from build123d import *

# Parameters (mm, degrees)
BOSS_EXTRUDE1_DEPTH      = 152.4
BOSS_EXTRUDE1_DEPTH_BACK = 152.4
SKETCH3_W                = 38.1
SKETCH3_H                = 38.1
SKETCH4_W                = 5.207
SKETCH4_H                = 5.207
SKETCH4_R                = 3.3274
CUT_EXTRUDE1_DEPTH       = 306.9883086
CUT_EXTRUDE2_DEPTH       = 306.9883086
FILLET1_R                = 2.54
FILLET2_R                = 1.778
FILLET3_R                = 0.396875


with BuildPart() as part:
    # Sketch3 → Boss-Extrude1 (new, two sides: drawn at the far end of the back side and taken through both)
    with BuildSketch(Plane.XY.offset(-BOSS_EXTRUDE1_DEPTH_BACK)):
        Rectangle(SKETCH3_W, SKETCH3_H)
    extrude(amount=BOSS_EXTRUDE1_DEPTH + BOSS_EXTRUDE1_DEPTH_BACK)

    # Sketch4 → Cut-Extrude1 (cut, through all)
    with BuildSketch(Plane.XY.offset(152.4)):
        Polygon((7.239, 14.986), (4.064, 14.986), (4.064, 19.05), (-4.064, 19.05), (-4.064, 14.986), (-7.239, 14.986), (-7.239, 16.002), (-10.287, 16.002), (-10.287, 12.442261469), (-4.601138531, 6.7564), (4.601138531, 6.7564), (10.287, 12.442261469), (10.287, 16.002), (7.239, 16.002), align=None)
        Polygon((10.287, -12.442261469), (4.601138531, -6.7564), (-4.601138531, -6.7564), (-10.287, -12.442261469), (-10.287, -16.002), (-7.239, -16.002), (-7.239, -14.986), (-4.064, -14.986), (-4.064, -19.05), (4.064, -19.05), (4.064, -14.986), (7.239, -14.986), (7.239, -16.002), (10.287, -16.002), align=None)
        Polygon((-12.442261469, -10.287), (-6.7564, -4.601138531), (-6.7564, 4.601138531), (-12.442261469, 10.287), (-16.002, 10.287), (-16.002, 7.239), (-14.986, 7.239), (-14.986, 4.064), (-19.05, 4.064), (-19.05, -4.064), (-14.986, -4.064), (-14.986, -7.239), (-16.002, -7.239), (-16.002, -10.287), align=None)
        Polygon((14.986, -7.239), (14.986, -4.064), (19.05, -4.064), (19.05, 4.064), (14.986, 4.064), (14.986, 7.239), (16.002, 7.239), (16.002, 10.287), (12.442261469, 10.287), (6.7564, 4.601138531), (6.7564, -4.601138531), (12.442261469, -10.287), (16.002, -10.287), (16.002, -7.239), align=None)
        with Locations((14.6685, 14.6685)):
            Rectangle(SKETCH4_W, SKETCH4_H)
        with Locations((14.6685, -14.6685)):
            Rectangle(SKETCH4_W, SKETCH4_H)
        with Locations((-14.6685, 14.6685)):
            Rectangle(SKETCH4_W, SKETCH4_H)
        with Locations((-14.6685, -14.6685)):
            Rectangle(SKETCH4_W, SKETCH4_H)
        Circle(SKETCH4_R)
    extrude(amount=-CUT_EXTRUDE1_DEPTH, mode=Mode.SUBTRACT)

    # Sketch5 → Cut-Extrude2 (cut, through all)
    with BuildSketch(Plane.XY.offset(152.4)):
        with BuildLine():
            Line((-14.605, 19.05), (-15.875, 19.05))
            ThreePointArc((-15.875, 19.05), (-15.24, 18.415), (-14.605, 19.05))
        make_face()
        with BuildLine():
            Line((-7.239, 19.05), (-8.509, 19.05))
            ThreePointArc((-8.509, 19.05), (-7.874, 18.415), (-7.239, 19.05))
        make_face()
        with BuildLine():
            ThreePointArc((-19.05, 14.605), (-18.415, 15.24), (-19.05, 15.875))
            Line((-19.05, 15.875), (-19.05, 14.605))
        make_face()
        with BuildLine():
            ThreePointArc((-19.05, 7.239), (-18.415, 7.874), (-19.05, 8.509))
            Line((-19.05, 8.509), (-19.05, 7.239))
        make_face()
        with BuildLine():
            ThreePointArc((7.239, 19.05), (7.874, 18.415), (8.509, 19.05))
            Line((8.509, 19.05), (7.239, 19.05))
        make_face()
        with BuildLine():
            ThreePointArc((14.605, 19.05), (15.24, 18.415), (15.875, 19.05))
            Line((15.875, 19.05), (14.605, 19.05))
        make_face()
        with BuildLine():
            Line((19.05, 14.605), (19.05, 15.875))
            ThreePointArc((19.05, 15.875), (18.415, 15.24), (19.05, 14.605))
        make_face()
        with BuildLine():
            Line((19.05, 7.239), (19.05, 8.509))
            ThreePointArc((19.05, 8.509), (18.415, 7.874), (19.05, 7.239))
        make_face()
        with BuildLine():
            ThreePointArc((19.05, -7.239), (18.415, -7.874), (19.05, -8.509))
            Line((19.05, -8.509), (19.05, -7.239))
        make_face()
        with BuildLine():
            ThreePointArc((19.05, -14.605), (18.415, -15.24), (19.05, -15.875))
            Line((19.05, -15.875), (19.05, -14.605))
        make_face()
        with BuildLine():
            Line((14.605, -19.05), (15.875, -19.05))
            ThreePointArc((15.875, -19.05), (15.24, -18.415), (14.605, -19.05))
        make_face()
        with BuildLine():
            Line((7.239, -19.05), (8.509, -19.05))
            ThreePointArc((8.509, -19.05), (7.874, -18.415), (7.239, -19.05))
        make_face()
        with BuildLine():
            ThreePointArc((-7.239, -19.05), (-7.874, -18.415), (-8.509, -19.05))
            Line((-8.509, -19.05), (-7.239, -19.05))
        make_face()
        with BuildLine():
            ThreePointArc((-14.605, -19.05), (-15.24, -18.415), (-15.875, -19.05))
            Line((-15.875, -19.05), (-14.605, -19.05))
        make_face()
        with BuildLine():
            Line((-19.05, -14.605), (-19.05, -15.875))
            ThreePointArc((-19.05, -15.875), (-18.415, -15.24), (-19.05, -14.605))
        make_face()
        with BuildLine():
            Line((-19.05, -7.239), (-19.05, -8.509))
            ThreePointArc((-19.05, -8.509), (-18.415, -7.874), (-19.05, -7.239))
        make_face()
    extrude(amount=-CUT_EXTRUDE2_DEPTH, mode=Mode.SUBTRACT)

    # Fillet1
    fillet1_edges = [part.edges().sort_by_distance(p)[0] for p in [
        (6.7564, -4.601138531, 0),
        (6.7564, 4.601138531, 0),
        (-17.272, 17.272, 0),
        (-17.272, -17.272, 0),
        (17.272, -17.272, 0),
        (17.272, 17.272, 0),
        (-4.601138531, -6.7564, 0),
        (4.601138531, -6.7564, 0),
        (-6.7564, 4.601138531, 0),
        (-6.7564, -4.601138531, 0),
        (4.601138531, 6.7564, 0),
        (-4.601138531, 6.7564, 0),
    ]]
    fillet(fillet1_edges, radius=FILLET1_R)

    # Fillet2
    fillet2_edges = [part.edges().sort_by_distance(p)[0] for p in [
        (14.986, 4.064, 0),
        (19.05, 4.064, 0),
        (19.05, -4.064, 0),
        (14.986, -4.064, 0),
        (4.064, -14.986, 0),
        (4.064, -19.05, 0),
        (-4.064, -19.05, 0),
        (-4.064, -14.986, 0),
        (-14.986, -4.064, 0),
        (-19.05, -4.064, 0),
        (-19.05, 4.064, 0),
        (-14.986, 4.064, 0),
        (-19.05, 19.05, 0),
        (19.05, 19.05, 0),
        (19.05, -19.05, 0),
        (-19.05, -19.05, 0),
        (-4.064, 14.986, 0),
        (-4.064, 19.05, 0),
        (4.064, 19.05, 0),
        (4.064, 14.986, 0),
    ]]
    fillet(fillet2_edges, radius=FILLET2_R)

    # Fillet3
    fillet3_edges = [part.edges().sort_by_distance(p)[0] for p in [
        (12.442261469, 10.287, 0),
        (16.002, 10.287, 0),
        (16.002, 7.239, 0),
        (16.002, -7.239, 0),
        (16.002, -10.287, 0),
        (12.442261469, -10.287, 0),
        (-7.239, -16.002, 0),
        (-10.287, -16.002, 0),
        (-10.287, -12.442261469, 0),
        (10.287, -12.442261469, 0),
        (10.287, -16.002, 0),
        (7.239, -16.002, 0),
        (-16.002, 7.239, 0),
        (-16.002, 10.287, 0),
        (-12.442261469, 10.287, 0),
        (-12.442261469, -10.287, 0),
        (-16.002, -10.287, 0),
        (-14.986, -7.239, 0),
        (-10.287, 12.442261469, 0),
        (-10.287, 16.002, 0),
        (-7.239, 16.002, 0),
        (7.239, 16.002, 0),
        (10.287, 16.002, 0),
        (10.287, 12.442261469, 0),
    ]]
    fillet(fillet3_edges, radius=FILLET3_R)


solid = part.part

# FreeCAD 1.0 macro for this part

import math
import FreeCAD as App
import Part
import Sketcher
Q = App.Units.Quantity


def edges_at(feature, points):
    """Names of the edges that pass closest to the given points."""
    edges = feature.Shape.Edges
    near = lambda p: min(range(len(edges)), key=lambda i: edges[i].distToShape(Part.Vertex(*p))[0])
    return sorted({f"Edge{near(p) + 1}" for p in points})

doc = App.newDocument("Part")
params = doc.addObject("Spreadsheet::Sheet", "Params")
for row, (alias, value) in enumerate([
    ("sketch1_width", "1.5 in"),
    ("pad1_length", "6 in"),
    ("pad1_length2", "6 in"),
    ("sketch2_diameter", "0.262 in"),
    ("sketch2_width", "0.32 in"),
    ("sketch2_width2", "0.12 in"),
    ("sketch2_width3", "0.04 in"),
    ("sketch2_width4", "0.16 in"),
    ("sketch3_radius", "0.025 in"),
    ("fillet_radius", "0.1 in"),
    ("fillet2_radius", "0.07 in"),
    ("fillet3_radius", "0.015625 in"),
], start=1):
    params.set(f"A{row}", alias)
    params.set(f"B{row}", "=" + value)
    params.setAlias(f"B{row}", alias)

body = doc.addObject("PartDesign::Body", "Body")

# Sketch on XY plane
sketch1 = body.newObject("Sketcher::SketchObject", "Sketch")
sketch1.AttachmentSupport = (doc.getObject("XY_Plane"), [""])
sketch1.MapMode = "FlatFace"
sketch1.addGeometry([
    Part.LineSegment(App.Vector(-19, 19, 0), App.Vector(-19, -19, 0)),
    Part.LineSegment(App.Vector(-19, -19, 0), App.Vector(19, -19, 0)),
    Part.LineSegment(App.Vector(19, -19, 0), App.Vector(19, 19, 0)),
    Part.LineSegment(App.Vector(19, 19, 0), App.Vector(-19, 19, 0)),
], False)
sketch1.addConstraint([
    Sketcher.Constraint("Coincident", 0, 2, 1, 1),
    Sketcher.Constraint("Coincident", 1, 2, 2, 1),
    Sketcher.Constraint("Coincident", 2, 2, 3, 1),
    Sketcher.Constraint("Coincident", 3, 2, 0, 1),
    Sketcher.Constraint("Vertical", 0),
    Sketcher.Constraint("Horizontal", 1),
    Sketcher.Constraint("Vertical", 2),
    Sketcher.Constraint("Horizontal", 3),
    Sketcher.Constraint("Symmetric", 0, 2, 2, 2, -1, 1),
    Sketcher.Constraint("Equal", 3, 0),
    Sketcher.Constraint("DistanceX", 1, 1, 1, 2, Q("1.5 in")),
])
sketch1.setExpression("Constraints[10]", "Params.sketch1_width")
pad1 = body.newObject("PartDesign::Pad", "Pad")
pad1.Profile = sketch1
pad1.Type = "TwoLengths"
pad1.setExpression("Length", "Params.pad1_length")
pad1.setExpression("Length2", "Params.pad1_length2")

# Sketch on XY plane
sketch2 = body.newObject("Sketcher::SketchObject", "Sketch001")
sketch2.AttachmentSupport = (doc.getObject("XY_Plane"), [""])
sketch2.MapMode = "FlatFace"
sketch2.AttachmentOffset = App.Placement(App.Vector(0, 0, 6 * 25.4), App.Rotation())
sketch2.addGeometry([
    Part.LineSegment(App.Vector(7.2, 15, 0), App.Vector(4.1, 15, 0)),  # 0
    Part.LineSegment(App.Vector(4.1, 15, 0), App.Vector(4.1, 19.1, 0)),  # 1
    Part.LineSegment(App.Vector(4.1, 19.1, 0), App.Vector(-4.1, 19.1, 0)),  # 2
    Part.LineSegment(App.Vector(-4.1, 19.1, 0), App.Vector(-4.1, 15, 0)),  # 3
    Part.LineSegment(App.Vector(-4.1, 15, 0), App.Vector(-7.2, 15, 0)),  # 4
    Part.LineSegment(App.Vector(-7.2, 15, 0), App.Vector(-7.2, 16, 0)),  # 5
    Part.LineSegment(App.Vector(-7.2, 16, 0), App.Vector(-10.3, 16, 0)),  # 6
    Part.LineSegment(App.Vector(-10.3, 16, 0), App.Vector(-10.3, 12.4, 0)),  # 7
    Part.LineSegment(App.Vector(-10.3, 12.4, 0), App.Vector(-4.6, 6.8, 0)),  # 8
    Part.LineSegment(App.Vector(-4.6, 6.8, 0), App.Vector(4.6, 6.8, 0)),  # 9
    Part.LineSegment(App.Vector(4.6, 6.8, 0), App.Vector(10.3, 12.4, 0)),  # 10
    Part.LineSegment(App.Vector(10.3, 12.4, 0), App.Vector(10.3, 16, 0)),  # 11
    Part.LineSegment(App.Vector(10.3, 16, 0), App.Vector(7.2, 16, 0)),  # 12
    Part.LineSegment(App.Vector(7.2, 16, 0), App.Vector(7.2, 15, 0)),  # 13
    Part.LineSegment(App.Vector(10.3, -12.4, 0), App.Vector(4.6, -6.8, 0)),  # 14
    Part.LineSegment(App.Vector(4.6, -6.8, 0), App.Vector(-4.6, -6.8, 0)),  # 15
    Part.LineSegment(App.Vector(-4.6, -6.8, 0), App.Vector(-10.3, -12.4, 0)),  # 16
    Part.LineSegment(App.Vector(-10.3, -12.4, 0), App.Vector(-10.3, -16, 0)),  # 17
    Part.LineSegment(App.Vector(-10.3, -16, 0), App.Vector(-7.2, -16, 0)),  # 18
    Part.LineSegment(App.Vector(-7.2, -16, 0), App.Vector(-7.2, -15, 0)),  # 19
    Part.LineSegment(App.Vector(-7.2, -15, 0), App.Vector(-4.1, -15, 0)),  # 20
    Part.LineSegment(App.Vector(-4.1, -15, 0), App.Vector(-4.1, -19.1, 0)),  # 21
    Part.LineSegment(App.Vector(-4.1, -19.1, 0), App.Vector(4.1, -19.1, 0)),  # 22
    Part.LineSegment(App.Vector(4.1, -19.1, 0), App.Vector(4.1, -15, 0)),  # 23
    Part.LineSegment(App.Vector(4.1, -15, 0), App.Vector(7.2, -15, 0)),  # 24
    Part.LineSegment(App.Vector(7.2, -15, 0), App.Vector(7.2, -16, 0)),  # 25
    Part.LineSegment(App.Vector(7.2, -16, 0), App.Vector(10.3, -16, 0)),  # 26
    Part.LineSegment(App.Vector(10.3, -16, 0), App.Vector(10.3, -12.4, 0)),  # 27
    Part.LineSegment(App.Vector(-12.4, -10.3, 0), App.Vector(-6.8, -4.6, 0)),  # 28
    Part.LineSegment(App.Vector(-6.8, -4.6, 0), App.Vector(-6.8, 4.6, 0)),  # 29
    Part.LineSegment(App.Vector(-6.8, 4.6, 0), App.Vector(-12.4, 10.3, 0)),  # 30
    Part.LineSegment(App.Vector(-12.4, 10.3, 0), App.Vector(-16, 10.3, 0)),  # 31
    Part.LineSegment(App.Vector(-16, 10.3, 0), App.Vector(-16, 7.2, 0)),  # 32
    Part.LineSegment(App.Vector(-16, 7.2, 0), App.Vector(-15, 7.2, 0)),  # 33
    Part.LineSegment(App.Vector(-15, 7.2, 0), App.Vector(-15, 4.1, 0)),  # 34
    Part.LineSegment(App.Vector(-15, 4.1, 0), App.Vector(-19.1, 4.1, 0)),  # 35
    Part.LineSegment(App.Vector(-19.1, 4.1, 0), App.Vector(-19.1, -4.1, 0)),  # 36
    Part.LineSegment(App.Vector(-19.1, -4.1, 0), App.Vector(-15, -4.1, 0)),  # 37
    Part.LineSegment(App.Vector(-15, -4.1, 0), App.Vector(-15, -7.2, 0)),  # 38
    Part.LineSegment(App.Vector(-15, -7.2, 0), App.Vector(-16, -7.2, 0)),  # 39
    Part.LineSegment(App.Vector(-16, -7.2, 0), App.Vector(-16, -10.3, 0)),  # 40
    Part.LineSegment(App.Vector(-16, -10.3, 0), App.Vector(-12.4, -10.3, 0)),  # 41
    Part.LineSegment(App.Vector(15, -7.2, 0), App.Vector(15, -4.1, 0)),  # 42
    Part.LineSegment(App.Vector(15, -4.1, 0), App.Vector(19.1, -4.1, 0)),  # 43
    Part.LineSegment(App.Vector(19.1, -4.1, 0), App.Vector(19.1, 4.1, 0)),  # 44
    Part.LineSegment(App.Vector(19.1, 4.1, 0), App.Vector(15, 4.1, 0)),  # 45
    Part.LineSegment(App.Vector(15, 4.1, 0), App.Vector(15, 7.2, 0)),  # 46
    Part.LineSegment(App.Vector(15, 7.2, 0), App.Vector(16, 7.2, 0)),  # 47
    Part.LineSegment(App.Vector(16, 7.2, 0), App.Vector(16, 10.3, 0)),  # 48
    Part.LineSegment(App.Vector(16, 10.3, 0), App.Vector(12.4, 10.3, 0)),  # 49
    Part.LineSegment(App.Vector(12.4, 10.3, 0), App.Vector(6.8, 4.6, 0)),  # 50
    Part.LineSegment(App.Vector(6.8, 4.6, 0), App.Vector(6.8, -4.6, 0)),  # 51
    Part.LineSegment(App.Vector(6.8, -4.6, 0), App.Vector(12.4, -10.3, 0)),  # 52
    Part.LineSegment(App.Vector(12.4, -10.3, 0), App.Vector(16, -10.3, 0)),  # 53
    Part.LineSegment(App.Vector(16, -10.3, 0), App.Vector(16, -7.2, 0)),  # 54
    Part.LineSegment(App.Vector(16, -7.2, 0), App.Vector(15, -7.2, 0)),  # 55
    Part.LineSegment(App.Vector(12.1, 17.3, 0), App.Vector(12.1, 12.1, 0)),  # 56
    Part.LineSegment(App.Vector(12.1, 12.1, 0), App.Vector(17.3, 12.1, 0)),  # 57
    Part.LineSegment(App.Vector(17.3, 12.1, 0), App.Vector(17.3, 17.3, 0)),  # 58
    Part.LineSegment(App.Vector(17.3, 17.3, 0), App.Vector(12.1, 17.3, 0)),  # 59
    Part.LineSegment(App.Vector(12.1, -12.1, 0), App.Vector(12.1, -17.3, 0)),  # 60
    Part.LineSegment(App.Vector(12.1, -17.3, 0), App.Vector(17.3, -17.3, 0)),  # 61
    Part.LineSegment(App.Vector(17.3, -17.3, 0), App.Vector(17.3, -12.1, 0)),  # 62
    Part.LineSegment(App.Vector(17.3, -12.1, 0), App.Vector(12.1, -12.1, 0)),  # 63
    Part.LineSegment(App.Vector(-17.3, 17.3, 0), App.Vector(-17.3, 12.1, 0)),  # 64
    Part.LineSegment(App.Vector(-17.3, 12.1, 0), App.Vector(-12.1, 12.1, 0)),  # 65
    Part.LineSegment(App.Vector(-12.1, 12.1, 0), App.Vector(-12.1, 17.3, 0)),  # 66
    Part.LineSegment(App.Vector(-12.1, 17.3, 0), App.Vector(-17.3, 17.3, 0)),  # 67
    Part.LineSegment(App.Vector(-17.3, -12.1, 0), App.Vector(-17.3, -17.3, 0)),  # 68
    Part.LineSegment(App.Vector(-17.3, -17.3, 0), App.Vector(-12.1, -17.3, 0)),  # 69
    Part.LineSegment(App.Vector(-12.1, -17.3, 0), App.Vector(-12.1, -12.1, 0)),  # 70
    Part.LineSegment(App.Vector(-12.1, -12.1, 0), App.Vector(-17.3, -12.1, 0)),  # 71
    Part.Circle(App.Vector(0, 0, 0), App.Vector(0, 0, 1), 3.3),  # 72
], False)
sketch2.addConstraint([
    Sketcher.Constraint("Coincident", 0, 2, 1, 1),
    Sketcher.Constraint("Coincident", 1, 2, 2, 1),
    Sketcher.Constraint("Coincident", 2, 2, 3, 1),
    Sketcher.Constraint("Coincident", 3, 2, 4, 1),
    Sketcher.Constraint("Coincident", 4, 2, 5, 1),
    Sketcher.Constraint("Coincident", 5, 2, 6, 1),
    Sketcher.Constraint("Coincident", 6, 2, 7, 1),
    Sketcher.Constraint("Coincident", 7, 2, 8, 1),
    Sketcher.Constraint("Coincident", 8, 2, 9, 1),
    Sketcher.Constraint("Coincident", 9, 2, 10, 1),
    Sketcher.Constraint("Coincident", 10, 2, 11, 1),
    Sketcher.Constraint("Coincident", 11, 2, 12, 1),
    Sketcher.Constraint("Coincident", 12, 2, 13, 1),
    Sketcher.Constraint("Coincident", 13, 2, 0, 1),
    Sketcher.Constraint("Coincident", 14, 2, 15, 1),
    Sketcher.Constraint("Coincident", 15, 2, 16, 1),
    Sketcher.Constraint("Coincident", 16, 2, 17, 1),
    Sketcher.Constraint("Coincident", 17, 2, 18, 1),
    Sketcher.Constraint("Coincident", 18, 2, 19, 1),
    Sketcher.Constraint("Coincident", 19, 2, 20, 1),
    Sketcher.Constraint("Coincident", 20, 2, 21, 1),
    Sketcher.Constraint("Coincident", 21, 2, 22, 1),
    Sketcher.Constraint("Coincident", 22, 2, 23, 1),
    Sketcher.Constraint("Coincident", 23, 2, 24, 1),
    Sketcher.Constraint("Coincident", 24, 2, 25, 1),
    Sketcher.Constraint("Coincident", 25, 2, 26, 1),
    Sketcher.Constraint("Coincident", 26, 2, 27, 1),
    Sketcher.Constraint("Coincident", 27, 2, 14, 1),
    Sketcher.Constraint("Coincident", 28, 2, 29, 1),
    Sketcher.Constraint("Coincident", 29, 2, 30, 1),
    Sketcher.Constraint("Coincident", 30, 2, 31, 1),
    Sketcher.Constraint("Coincident", 31, 2, 32, 1),
    Sketcher.Constraint("Coincident", 32, 2, 33, 1),
    Sketcher.Constraint("Coincident", 33, 2, 34, 1),
    Sketcher.Constraint("Coincident", 34, 2, 35, 1),
    Sketcher.Constraint("Coincident", 35, 2, 36, 1),
    Sketcher.Constraint("Coincident", 36, 2, 37, 1),
    Sketcher.Constraint("Coincident", 37, 2, 38, 1),
    Sketcher.Constraint("Coincident", 38, 2, 39, 1),
    Sketcher.Constraint("Coincident", 39, 2, 40, 1),
    Sketcher.Constraint("Coincident", 40, 2, 41, 1),
    Sketcher.Constraint("Coincident", 41, 2, 28, 1),
    Sketcher.Constraint("Coincident", 42, 2, 43, 1),
    Sketcher.Constraint("Coincident", 43, 2, 44, 1),
    Sketcher.Constraint("Coincident", 44, 2, 45, 1),
    Sketcher.Constraint("Coincident", 45, 2, 46, 1),
    Sketcher.Constraint("Coincident", 46, 2, 47, 1),
    Sketcher.Constraint("Coincident", 47, 2, 48, 1),
    Sketcher.Constraint("Coincident", 48, 2, 49, 1),
    Sketcher.Constraint("Coincident", 49, 2, 50, 1),
    Sketcher.Constraint("Coincident", 50, 2, 51, 1),
    Sketcher.Constraint("Coincident", 51, 2, 52, 1),
    Sketcher.Constraint("Coincident", 52, 2, 53, 1),
    Sketcher.Constraint("Coincident", 53, 2, 54, 1),
    Sketcher.Constraint("Coincident", 54, 2, 55, 1),
    Sketcher.Constraint("Coincident", 55, 2, 42, 1),
    Sketcher.Constraint("Coincident", 56, 2, 57, 1),
    Sketcher.Constraint("Coincident", 57, 2, 58, 1),
    Sketcher.Constraint("Coincident", 58, 2, 59, 1),
    Sketcher.Constraint("Coincident", 59, 2, 56, 1),
    Sketcher.Constraint("Coincident", 60, 2, 61, 1),
    Sketcher.Constraint("Coincident", 61, 2, 62, 1),
    Sketcher.Constraint("Coincident", 62, 2, 63, 1),
    Sketcher.Constraint("Coincident", 63, 2, 60, 1),
    Sketcher.Constraint("Coincident", 64, 2, 65, 1),
    Sketcher.Constraint("Coincident", 65, 2, 66, 1),
    Sketcher.Constraint("Coincident", 66, 2, 67, 1),
    Sketcher.Constraint("Coincident", 67, 2, 64, 1),
    Sketcher.Constraint("Coincident", 68, 2, 69, 1),
    Sketcher.Constraint("Coincident", 69, 2, 70, 1),
    Sketcher.Constraint("Coincident", 70, 2, 71, 1),
    Sketcher.Constraint("Coincident", 71, 2, 68, 1),
    Sketcher.Constraint("Horizontal", 0),
    Sketcher.Constraint("Vertical", 1),
    Sketcher.Constraint("Horizontal", 2),
    Sketcher.Constraint("Vertical", 3),
    Sketcher.Constraint("Horizontal", 4),
    Sketcher.Constraint("Vertical", 5),
    Sketcher.Constraint("Horizontal", 6),
    Sketcher.Constraint("Vertical", 7),
    Sketcher.Constraint("Horizontal", 9),
    Sketcher.Constraint("Vertical", 11),
    Sketcher.Constraint("Horizontal", 12),
    Sketcher.Constraint("Vertical", 13),
    Sketcher.Constraint("Horizontal", 15),
    Sketcher.Constraint("Vertical", 17),
    Sketcher.Constraint("Horizontal", 18),
    Sketcher.Constraint("Vertical", 19),
    Sketcher.Constraint("Horizontal", 20),
    Sketcher.Constraint("Vertical", 21),
    Sketcher.Constraint("Horizontal", 22),
    Sketcher.Constraint("Vertical", 23),
    Sketcher.Constraint("Horizontal", 24),
    Sketcher.Constraint("Vertical", 25),
    Sketcher.Constraint("Horizontal", 26),
    Sketcher.Constraint("Vertical", 27),
    Sketcher.Constraint("Vertical", 29),
    Sketcher.Constraint("Horizontal", 31),
    Sketcher.Constraint("Vertical", 32),
    Sketcher.Constraint("Horizontal", 33),
    Sketcher.Constraint("Vertical", 34),
    Sketcher.Constraint("Horizontal", 35),
    Sketcher.Constraint("Vertical", 36),
    Sketcher.Constraint("Horizontal", 37),
    Sketcher.Constraint("Vertical", 38),
    Sketcher.Constraint("Horizontal", 39),
    Sketcher.Constraint("Vertical", 40),
    Sketcher.Constraint("Horizontal", 41),
    Sketcher.Constraint("Vertical", 42),
    Sketcher.Constraint("Horizontal", 43),
    Sketcher.Constraint("Vertical", 44),
    Sketcher.Constraint("Horizontal", 45),
    Sketcher.Constraint("Vertical", 46),
    Sketcher.Constraint("Horizontal", 47),
    Sketcher.Constraint("Vertical", 48),
    Sketcher.Constraint("Horizontal", 49),
    Sketcher.Constraint("Vertical", 51),
    Sketcher.Constraint("Horizontal", 53),
    Sketcher.Constraint("Vertical", 54),
    Sketcher.Constraint("Horizontal", 55),
    Sketcher.Constraint("Vertical", 56),
    Sketcher.Constraint("Horizontal", 57),
    Sketcher.Constraint("Vertical", 58),
    Sketcher.Constraint("Horizontal", 59),
    Sketcher.Constraint("Vertical", 60),
    Sketcher.Constraint("Horizontal", 61),
    Sketcher.Constraint("Vertical", 62),
    Sketcher.Constraint("Horizontal", 63),
    Sketcher.Constraint("Vertical", 64),
    Sketcher.Constraint("Horizontal", 65),
    Sketcher.Constraint("Vertical", 66),
    Sketcher.Constraint("Horizontal", 67),
    Sketcher.Constraint("Vertical", 68),
    Sketcher.Constraint("Horizontal", 69),
    Sketcher.Constraint("Vertical", 70),
    Sketcher.Constraint("Horizontal", 71),
    Sketcher.Constraint("Coincident", 72, 3, -1, 1),
    Sketcher.Constraint("Symmetric", 8, 2, 14, 2, -1, 1),
    Sketcher.Constraint("Symmetric", 10, 2, 16, 2, -1, 1),
    Sketcher.Constraint("Symmetric", 12, 2, 18, 2, -1, 1),
    Sketcher.Constraint("Symmetric", 0, 2, 20, 2, -1, 1),
    Sketcher.Constraint("Symmetric", 2, 2, 22, 2, -1, 1),
    Sketcher.Constraint("Symmetric", 4, 2, 24, 2, -1, 1),
    Sketcher.Constraint("Symmetric", 6, 2, 26, 2, -1, 1),
    Sketcher.Constraint("Symmetric", 34, 2, 42, 2, -1, 1),
    Sketcher.Constraint("Symmetric", 36, 2, 44, 2, -1, 1),
    Sketcher.Constraint("Symmetric", 38, 2, 46, 2, -1, 1),
    Sketcher.Constraint("Symmetric", 40, 2, 48, 2, -1, 1),
    Sketcher.Constraint("Symmetric", 28, 2, 50, 2, -1, 1),
    Sketcher.Constraint("Symmetric", 30, 2, 52, 2, -1, 1),
    Sketcher.Constraint("Symmetric", 32, 2, 54, 2, -1, 1),
    Sketcher.Constraint("Symmetric", 62, 2, 64, 2, -1, 1),
    Sketcher.Constraint("Symmetric", 60, 2, 66, 2, -1, 1),
    Sketcher.Constraint("Symmetric", 58, 2, 68, 2, -1, 1),
    Sketcher.Constraint("Symmetric", 56, 2, 70, 2, -1, 1),
    Sketcher.Constraint("Symmetric", 0, 2, 3, 2, -2),
    Sketcher.Constraint("Symmetric", 7, 2, 10, 2, -2),
    Sketcher.Constraint("Symmetric", 5, 2, 12, 2, -2),
    Sketcher.Constraint("Symmetric", 37, 2, 42, 2, -2),
    Sketcher.Constraint("Symmetric", 32, 2, 47, 2, -2),
    Sketcher.Constraint("Symmetric", 30, 2, 49, 2, -2),
    Sketcher.Constraint("Symmetric", 57, 2, 64, 2, -2),
    Sketcher.Constraint("Symmetric", 59, 2, 66, 2, -2),
    Sketcher.Constraint("Perpendicular", 8, 10),
    Sketcher.Constraint("Perpendicular", 10, 14),
    Sketcher.Constraint("Perpendicular", 14, 16),
    Sketcher.Constraint("Parallel", 16, 28),
    Sketcher.Constraint("Perpendicular", 28, 30),
    Sketcher.Constraint("Perpendicular", 30, 50),
    Sketcher.Constraint("Perpendicular", 50, 52),
    Sketcher.Constraint("Horizontal", 29, 2, 50, 2),
    Sketcher.Constraint("Equal", 45, 1),
    Sketcher.Constraint("Equal", 55, 5),
    Sketcher.Constraint("Equal", 53, 7),
    Sketcher.Constraint("Equal", 15, 29),
    Sketcher.Constraint("Equal", 26, 32),
    Sketcher.Constraint("Equal", 24, 34),
    Sketcher.Constraint("Equal", 22, 36),
    Sketcher.Constraint("Equal", 71, 56),
    Sketcher.Constraint("Diameter", 72, Q("0.262 in")),
    Sketcher.Constraint("DistanceX", 2, 2, 2, 1, Q("0.32 in")),
    Sketcher.Constraint("DistanceX", 6, 2, 6, 1, Q("0.12 in")),
    Sketcher.Constraint("DistanceX", 33, 1, 33, 2, Q("0.04 in")),
    Sketcher.Constraint("DistanceX", 35, 2, 35, 1, Q("0.16 in")),
    Sketcher.Constraint("DistanceX", 0, 2, 0, 1, Q("0.125 in")),
    Sketcher.Constraint("DistanceX", 57, 1, 57, 2, Q("0.205 in")),
    Sketcher.Constraint("DistanceY", -1, 1, 0, 2, Q("0.59 in")),
    Sketcher.Constraint("DistanceX", 31, 2, -1, 1, Q("0.63 in")),
    Sketcher.Constraint("DistanceX", -1, 1, 57, 2, Q("0.68 in")),
    Sketcher.Constraint("DistanceY", -1, 1, 58, 2, Q("0.68 in")),
    Sketcher.Constraint("DistanceY", -1, 1, 8, 2, Q("0.266 in")),
    Sketcher.Constraint("DistanceX", 31, 2, 31, 1, 3.559739),
])
sketch2.setExpression("Constraints[179]", "Params.sketch2_diameter")
sketch2.setExpression("Constraints[180]", "Params.sketch2_width")
sketch2.setExpression("Constraints[181]", "Params.sketch2_width2")
sketch2.setExpression("Constraints[182]", "Params.sketch2_width3")
sketch2.setExpression("Constraints[183]", "Params.sketch2_width4")
pocket1 = body.newObject("PartDesign::Pocket", "Pocket")
pocket1.Profile = sketch2
pocket1.Type = "ThroughAll"

# Sketch on XY plane
sketch3 = body.newObject("Sketcher::SketchObject", "Sketch002")
sketch3.AttachmentSupport = (doc.getObject("XY_Plane"), [""])
sketch3.MapMode = "FlatFace"
sketch3.AttachmentOffset = App.Placement(App.Vector(0, 0, 6 * 25.4), App.Rotation())
sketch3.addGeometry([
    Part.LineSegment(App.Vector(-14.6, 19.1, 0), App.Vector(-15.9, 19.1, 0)),  # 0
    Part.ArcOfCircle(Part.Circle(App.Vector(-15.2, 19.1, 0), App.Vector(0, 0, 1), 0.6), math.radians(180), math.radians(360)),  # 1
    Part.LineSegment(App.Vector(-7.2, 19.1, 0), App.Vector(-8.5, 19.1, 0)),  # 2
    Part.ArcOfCircle(Part.Circle(App.Vector(-7.9, 19.1, 0), App.Vector(0, 0, 1), 0.6), math.radians(180), math.radians(360)),  # 3
    Part.ArcOfCircle(Part.Circle(App.Vector(-19.1, 15.2, 0), App.Vector(0, 0, 1), 0.6), math.radians(-90), math.radians(90)),  # 4
    Part.LineSegment(App.Vector(-19.1, 15.9, 0), App.Vector(-19.1, 14.6, 0)),  # 5
    Part.ArcOfCircle(Part.Circle(App.Vector(-19.1, 7.9, 0), App.Vector(0, 0, 1), 0.6), math.radians(-90), math.radians(90)),  # 6
    Part.LineSegment(App.Vector(-19.1, 8.5, 0), App.Vector(-19.1, 7.2, 0)),  # 7
    Part.ArcOfCircle(Part.Circle(App.Vector(7.9, 19.1, 0), App.Vector(0, 0, 1), 0.6), math.radians(180), math.radians(360)),  # 8
    Part.LineSegment(App.Vector(8.5, 19.1, 0), App.Vector(7.2, 19.1, 0)),  # 9
    Part.ArcOfCircle(Part.Circle(App.Vector(15.2, 19.1, 0), App.Vector(0, 0, 1), 0.6), math.radians(180), math.radians(360)),  # 10
    Part.LineSegment(App.Vector(15.9, 19.1, 0), App.Vector(14.6, 19.1, 0)),  # 11
    Part.LineSegment(App.Vector(19.1, 14.6, 0), App.Vector(19.1, 15.9, 0)),  # 12
    Part.ArcOfCircle(Part.Circle(App.Vector(19.1, 15.2, 0), App.Vector(0, 0, 1), 0.6), math.radians(90), math.radians(270)),  # 13
    Part.LineSegment(App.Vector(19.1, 7.2, 0), App.Vector(19.1, 8.5, 0)),  # 14
    Part.ArcOfCircle(Part.Circle(App.Vector(19.1, 7.9, 0), App.Vector(0, 0, 1), 0.6), math.radians(90), math.radians(270)),  # 15
    Part.ArcOfCircle(Part.Circle(App.Vector(19.1, -7.9, 0), App.Vector(0, 0, 1), 0.6), math.radians(90), math.radians(270)),  # 16
    Part.LineSegment(App.Vector(19.1, -8.5, 0), App.Vector(19.1, -7.2, 0)),  # 17
    Part.ArcOfCircle(Part.Circle(App.Vector(19.1, -15.2, 0), App.Vector(0, 0, 1), 0.6), math.radians(90), math.radians(270)),  # 18
    Part.LineSegment(App.Vector(19.1, -15.9, 0), App.Vector(19.1, -14.6, 0)),  # 19
    Part.LineSegment(App.Vector(14.6, -19.1, 0), App.Vector(15.9, -19.1, 0)),  # 20
    Part.ArcOfCircle(Part.Circle(App.Vector(15.2, -19.1, 0), App.Vector(0, 0, 1), 0.6), math.radians(0), math.radians(180)),  # 21
    Part.LineSegment(App.Vector(7.2, -19.1, 0), App.Vector(8.5, -19.1, 0)),  # 22
    Part.ArcOfCircle(Part.Circle(App.Vector(7.9, -19.1, 0), App.Vector(0, 0, 1), 0.6), math.radians(0), math.radians(180)),  # 23
    Part.ArcOfCircle(Part.Circle(App.Vector(-7.9, -19.1, 0), App.Vector(0, 0, 1), 0.6), math.radians(0), math.radians(180)),  # 24
    Part.LineSegment(App.Vector(-8.5, -19.1, 0), App.Vector(-7.2, -19.1, 0)),  # 25
    Part.ArcOfCircle(Part.Circle(App.Vector(-15.2, -19.1, 0), App.Vector(0, 0, 1), 0.6), math.radians(0), math.radians(180)),  # 26
    Part.LineSegment(App.Vector(-15.9, -19.1, 0), App.Vector(-14.6, -19.1, 0)),  # 27
    Part.LineSegment(App.Vector(-19.1, -14.6, 0), App.Vector(-19.1, -15.9, 0)),  # 28
    Part.ArcOfCircle(Part.Circle(App.Vector(-19.1, -15.2, 0), App.Vector(0, 0, 1), 0.6), math.radians(-90), math.radians(90)),  # 29
    Part.LineSegment(App.Vector(-19.1, -7.2, 0), App.Vector(-19.1, -8.5, 0)),  # 30
    Part.ArcOfCircle(Part.Circle(App.Vector(-19.1, -7.9, 0), App.Vector(0, 0, 1), 0.6), math.radians(-90), math.radians(90)),  # 31
], False)
sketch3.addConstraint([
    Sketcher.Constraint("Coincident", 0, 1, 1, 2),
    Sketcher.Constraint("Coincident", 1, 1, 0, 2),
    Sketcher.Constraint("Coincident", 2, 1, 3, 2),
    Sketcher.Constraint("Coincident", 3, 1, 2, 2),
    Sketcher.Constraint("Coincident", 4, 1, 5, 2),
    Sketcher.Constraint("Coincident", 5, 1, 4, 2),
    Sketcher.Constraint("Coincident", 6, 1, 7, 2),
    Sketcher.Constraint("Coincident", 7, 1, 6, 2),
    Sketcher.Constraint("Coincident", 8, 1, 9, 2),
    Sketcher.Constraint("Coincident", 9, 1, 8, 2),
    Sketcher.Constraint("Coincident", 10, 1, 11, 2),
    Sketcher.Constraint("Coincident", 11, 1, 10, 2),
    Sketcher.Constraint("Coincident", 12, 1, 13, 2),
    Sketcher.Constraint("Coincident", 13, 1, 12, 2),
    Sketcher.Constraint("Coincident", 14, 1, 15, 2),
    Sketcher.Constraint("Coincident", 15, 1, 14, 2),
    Sketcher.Constraint("Coincident", 16, 1, 17, 2),
    Sketcher.Constraint("Coincident", 17, 1, 16, 2),
    Sketcher.Constraint("Coincident", 18, 1, 19, 2),
    Sketcher.Constraint("Coincident", 19, 1, 18, 2),
    Sketcher.Constraint("Coincident", 20, 1, 21, 2),
    Sketcher.Constraint("Coincident", 21, 1, 20, 2),
    Sketcher.Constraint("Coincident", 22, 1, 23, 2),
    Sketcher.Constraint("Coincident", 23, 1, 22, 2),
    Sketcher.Constraint("Coincident", 24, 1, 25, 2),
    Sketcher.Constraint("Coincident", 25, 1, 24, 2),
    Sketcher.Constraint("Coincident", 26, 1, 27, 2),
    Sketcher.Constraint("Coincident", 27, 1, 26, 2),
    Sketcher.Constraint("Coincident", 28, 1, 29, 2),
    Sketcher.Constraint("Coincident", 29, 1, 28, 2),
    Sketcher.Constraint("Coincident", 30, 1, 31, 2),
    Sketcher.Constraint("Coincident", 31, 1, 30, 2),
    Sketcher.Constraint("Horizontal", 0),
    Sketcher.Constraint("Horizontal", 2),
    Sketcher.Constraint("Vertical", 5),
    Sketcher.Constraint("Vertical", 7),
    Sketcher.Constraint("Horizontal", 9),
    Sketcher.Constraint("Horizontal", 11),
    Sketcher.Constraint("Vertical", 12),
    Sketcher.Constraint("Vertical", 14),
    Sketcher.Constraint("Vertical", 17),
    Sketcher.Constraint("Vertical", 19),
    Sketcher.Constraint("Horizontal", 20),
    Sketcher.Constraint("Horizontal", 22),
    Sketcher.Constraint("Horizontal", 25),
    Sketcher.Constraint("Horizontal", 27),
    Sketcher.Constraint("Vertical", 28),
    Sketcher.Constraint("Vertical", 30),
    Sketcher.Constraint("Equal", 1, 3),
    Sketcher.Constraint("Equal", 3, 4),
    Sketcher.Constraint("Equal", 4, 6),
    Sketcher.Constraint("Equal", 6, 8),
    Sketcher.Constraint("Equal", 8, 10),
    Sketcher.Constraint("Equal", 10, 13),
    Sketcher.Constraint("Equal", 13, 15),
    Sketcher.Constraint("Equal", 15, 16),
    Sketcher.Constraint("Equal", 16, 18),
    Sketcher.Constraint("Equal", 18, 21),
    Sketcher.Constraint("Equal", 21, 23),
    Sketcher.Constraint("Equal", 23, 24),
    Sketcher.Constraint("Equal", 24, 26),
    Sketcher.Constraint("Equal", 26, 29),
    Sketcher.Constraint("Equal", 29, 31),
    Sketcher.Constraint("Symmetric", 6, 3, 16, 3, -1, 1),
    Sketcher.Constraint("Symmetric", 4, 3, 18, 3, -1, 1),
    Sketcher.Constraint("Symmetric", 1, 3, 21, 3, -1, 1),
    Sketcher.Constraint("Symmetric", 3, 3, 23, 3, -1, 1),
    Sketcher.Constraint("Symmetric", 8, 3, 24, 3, -1, 1),
    Sketcher.Constraint("Symmetric", 10, 3, 26, 3, -1, 1),
    Sketcher.Constraint("Symmetric", 13, 3, 29, 3, -1, 1),
    Sketcher.Constraint("Symmetric", 15, 3, 31, 3, -1, 1),
    Sketcher.Constraint("Symmetric", 3, 3, 8, 3, -2),
    Sketcher.Constraint("Symmetric", 1, 3, 10, 3, -2),
    Sketcher.Constraint("Symmetric", 4, 3, 13, 3, -2),
    Sketcher.Constraint("Symmetric", 6, 3, 15, 3, -2),
    Sketcher.Constraint("Horizontal", 1, 3, 3, 3),
    Sketcher.Constraint("Horizontal", 10, 3, 0, 1),
    Sketcher.Constraint("Horizontal", 1, 1, 2, 1),
    Sketcher.Constraint("Horizontal", 3, 1, 8, 1),
    Sketcher.Constraint("Horizontal", 9, 1, 10, 1),
    Sketcher.Constraint("Horizontal", 26, 3, 20, 1),
    Sketcher.Constraint("Horizontal", 21, 1, 22, 1),
    Sketcher.Constraint("Horizontal", 23, 1, 24, 1),
    Sketcher.Constraint("Horizontal", 25, 1, 26, 1),
    Sketcher.Constraint("Vertical", 4, 3, 6, 3),
    Sketcher.Constraint("Vertical", 31, 3, 4, 1),
    Sketcher.Constraint("Vertical", 5, 1, 6, 1),
    Sketcher.Constraint("Vertical", 18, 3, 12, 1),
    Sketcher.Constraint("Vertical", 13, 1, 14, 1),
    Sketcher.Constraint("Vertical", 15, 1, 16, 1),
    Sketcher.Constraint("Vertical", 17, 1, 18, 1),
    Sketcher.Constraint("Vertical", 7, 1, 28, 1),
    Sketcher.Constraint("Vertical", 29, 1, 30, 1),
    Sketcher.Constraint("Radius", 1, Q("0.025 in")),
    Sketcher.Constraint("DistanceX", 1, 3, -1, 1, Q("0.6 in")),
    Sketcher.Constraint("DistanceY", -1, 1, 4, 3, Q("0.6 in")),
    Sketcher.Constraint("DistanceX", 4, 3, 13, 3, Q("1.5 in")),
    Sketcher.Constraint("DistanceY", 21, 3, 10, 3, Q("1.5 in")),
    Sketcher.Constraint("DistanceX", 3, 3, -1, 1, Q("0.31 in")),
    Sketcher.Constraint("DistanceY", -1, 1, 6, 3, Q("0.31 in")),
])
sketch3.setExpression("Constraints[93]", "Params.sketch3_radius")
pocket2 = body.newObject("PartDesign::Pocket", "Pocket001")
pocket2.Profile = sketch3
pocket2.Type = "ThroughAll"
doc.recompute()

fillet = body.newObject("PartDesign::Fillet", "Fillet")
fillet.Base = (pocket2, edges_at(pocket2, [
    (6.756, -4.601, 0),
    (6.756, 4.601, 0),
    (-17.272, 17.272, 0),
    (-17.272, -17.272, 0),
    (17.272, -17.272, 0),
    (17.272, 17.272, 0),
    (-4.601, -6.756, 0),
    (4.601, -6.756, 0),
    (-6.756, 4.601, 0),
    (-6.756, -4.601, 0),
    (4.601, 6.756, 0),
    (-4.601, 6.756, 0),
]))
fillet.setExpression("Radius", "Params.fillet_radius")
doc.recompute()

fillet2 = body.newObject("PartDesign::Fillet", "Fillet001")
fillet2.Base = (fillet, edges_at(fillet, [
    (14.986, 4.064, 0),
    (19.05, 4.064, 0),
    (19.05, -4.064, 0),
    (14.986, -4.064, 0),
    (4.064, -14.986, 0),
    (4.064, -19.05, 0),
    (-4.064, -19.05, 0),
    (-4.064, -14.986, 0),
    (-14.986, -4.064, 0),
    (-19.05, -4.064, 0),
    (-19.05, 4.064, 0),
    (-14.986, 4.064, 0),
    (-19.05, 19.05, 0),
    (19.05, 19.05, 0),
    (19.05, -19.05, 0),
    (-19.05, -19.05, 0),
    (-4.064, 14.986, 0),
    (-4.064, 19.05, 0),
    (4.064, 19.05, 0),
    (4.064, 14.986, 0),
]))
fillet2.setExpression("Radius", "Params.fillet2_radius")
doc.recompute()

fillet3 = body.newObject("PartDesign::Fillet", "Fillet002")
fillet3.Base = (fillet2, edges_at(fillet2, [
    (12.442, 10.287, 0),
    (16.002, 10.287, 0),
    (16.002, 7.239, 0),
    (16.002, -7.239, 0),
    (16.002, -10.287, 0),
    (12.442, -10.287, 0),
    (-7.239, -16.002, 0),
    (-10.287, -16.002, 0),
    (-10.287, -12.442, 0),
    (10.287, -12.442, 0),
    (10.287, -16.002, 0),
    (7.239, -16.002, 0),
    (-16.002, 7.239, 0),
    (-16.002, 10.287, 0),
    (-12.442, 10.287, 0),
    (-12.442, -10.287, 0),
    (-16.002, -10.287, 0),
    (-14.986, -7.239, 0),
    (-10.287, 12.442, 0),
    (-10.287, 16.002, 0),
    (-7.239, 16.002, 0),
    (7.239, 16.002, 0),
    (10.287, 16.002, 0),
    (10.287, 12.442, 0),
]))
fillet3.setExpression("Radius", "Params.fillet3_radius")

doc.recompute()
